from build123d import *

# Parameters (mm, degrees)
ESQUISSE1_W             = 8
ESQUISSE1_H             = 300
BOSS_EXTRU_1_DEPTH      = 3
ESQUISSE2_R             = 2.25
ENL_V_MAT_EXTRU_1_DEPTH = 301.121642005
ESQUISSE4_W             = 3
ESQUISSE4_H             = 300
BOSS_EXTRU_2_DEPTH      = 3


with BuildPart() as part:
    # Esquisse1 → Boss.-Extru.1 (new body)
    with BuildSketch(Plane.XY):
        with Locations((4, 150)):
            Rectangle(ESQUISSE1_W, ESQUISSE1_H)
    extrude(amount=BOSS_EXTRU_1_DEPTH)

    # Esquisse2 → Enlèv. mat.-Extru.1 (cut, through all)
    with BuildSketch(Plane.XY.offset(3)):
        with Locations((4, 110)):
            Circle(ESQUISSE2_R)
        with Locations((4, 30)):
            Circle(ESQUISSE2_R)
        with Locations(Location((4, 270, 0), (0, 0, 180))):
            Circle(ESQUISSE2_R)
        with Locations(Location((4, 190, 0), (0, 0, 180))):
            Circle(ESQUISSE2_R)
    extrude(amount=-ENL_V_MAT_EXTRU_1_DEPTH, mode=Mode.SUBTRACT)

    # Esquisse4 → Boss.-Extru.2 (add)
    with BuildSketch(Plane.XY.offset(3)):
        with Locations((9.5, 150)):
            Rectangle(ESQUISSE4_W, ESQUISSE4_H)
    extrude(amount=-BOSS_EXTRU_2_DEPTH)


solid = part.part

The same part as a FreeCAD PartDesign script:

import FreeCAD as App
import Part
import Sketcher
Q = App.Units.Quantity


def add_polygon(sketch, points):
    """Adds a closed chain of lines whose ends are joined by coincident constraints."""
    first, n = sketch.GeometryCount, len(points)
    for a, b in zip(points, points[1:] + points[:1]):
        sketch.addGeometry(Part.LineSegment(App.Vector(*a, 0), App.Vector(*b, 0)), False)
    for i in range(n):
        sketch.addConstraint(Sketcher.Constraint("Coincident", first + i, 2, first + (i + 1) % n, 1))

doc = App.newDocument("Part")
params = doc.addObject("Spreadsheet::Sheet", "Params")
for row, (alias, value) in enumerate([
    ("sketch1_width", "8 mm"),
    ("sketch1_height", "300 mm"),
    ("pad1_length", "3 mm"),
    ("sketch2_diameter", "4.5 mm"),
    ("sketch3_width", "3 mm"),
    ("sketch3_height", "300 mm"),
    ("pad2_length", "3 mm"),
], start=1):
    params.set(f"A{row}", alias)
    params.set(f"B{row}", "=" + value)
    params.setAlias(f"B{row}", alias)

body = doc.addObject("PartDesign::Body", "Body")

# Sketch on XY plane
sketch1 = body.newObject("Sketcher::SketchObject", "Sketch")
sketch1.AttachmentSupport = (doc.getObject("XY_Plane"), [""])
sketch1.MapMode = "FlatFace"
add_polygon(sketch1, [(0, 300), (0, 0), (8, 0), (8, 300)])  # lines 0-3
sketch1.addConstraint(Sketcher.Constraint("Vertical", 0))
sketch1.addConstraint(Sketcher.Constraint("Horizontal", 1))
sketch1.addConstraint(Sketcher.Constraint("Vertical", 2))
sketch1.addConstraint(Sketcher.Constraint("Horizontal", 3))
sketch1.addConstraint(Sketcher.Constraint("Coincident", 0, 2, -1, 1))
sketch1.addConstraint(Sketcher.Constraint("DistanceX", 1, 1, 1, 2, Q("8 mm")))
sketch1.addConstraint(Sketcher.Constraint("DistanceY", 0, 2, 0, 1, Q("300 mm")))
sketch1.setExpression("Constraints[9]", "Params.sketch1_width")
sketch1.setExpression("Constraints[10]", "Params.sketch1_height")
pad1 = body.newObject("PartDesign::Pad", "Pad")
pad1.Profile = sketch1
pad1.setExpression("Length", "Params.pad1_length")

# Sketch on XY plane
sketch2 = body.newObject("Sketcher::SketchObject", "Sketch001")
sketch2.AttachmentSupport = (doc.getObject("XY_Plane"), [""])
sketch2.MapMode = "FlatFace"
sketch2.AttachmentOffset = App.Placement(App.Vector(0, 0, 3), App.Rotation())
sketch2.addGeometry(Part.Circle(App.Vector(4, 110, 0), App.Vector(0, 0, 1), 2.25), False)
sketch2.addGeometry(Part.Circle(App.Vector(4, 30, 0), App.Vector(0, 0, 1), 2.25), False)
sketch2.addGeometry(Part.Circle(App.Vector(4, 270, 0), App.Vector(0, 0, 1), 2.25), False)
sketch2.addGeometry(Part.Circle(App.Vector(4, 190, 0), App.Vector(0, 0, 1), 2.25), False)
sketch2.addConstraint(Sketcher.Constraint("Equal", 0, 1))
sketch2.addConstraint(Sketcher.Constraint("Equal", 1, 2))
sketch2.addConstraint(Sketcher.Constraint("Equal", 2, 3))
sketch2.addConstraint(Sketcher.Constraint("Vertical", 0, 3, 1, 3))
sketch2.addConstraint(Sketcher.Constraint("Vertical", 1, 3, 2, 3))
sketch2.addConstraint(Sketcher.Constraint("Vertical", 2, 3, 3, 3))
sketch2.addConstraint(Sketcher.Constraint("Diameter", 0, Q("4.5 mm")))
sketch2.addConstraint(Sketcher.Constraint("DistanceX", -1, 1, 0, 3, Q("4 mm")))
sketch2.addConstraint(Sketcher.Constraint("DistanceY", -1, 1, 0, 3, Q("110 mm")))
sketch2.addConstraint(Sketcher.Constraint("DistanceY", -1, 1, 1, 3, Q("30 mm")))
sketch2.addConstraint(Sketcher.Constraint("DistanceY", -1, 1, 2, 3, Q("270 mm")))
sketch2.addConstraint(Sketcher.Constraint("DistanceY", -1, 1, 3, 3, Q("190 mm")))
sketch2.setExpression("Constraints[6]", "Params.sketch2_diameter")
pocket1 = body.newObject("PartDesign::Pocket", "Pocket")
pocket1.Profile = sketch2
pocket1.Type = "ThroughAll"

# Sketch on XY plane
sketch3 = body.newObject("Sketcher::SketchObject", "Sketch002")
sketch3.AttachmentSupport = (doc.getObject("XY_Plane"), [""])
sketch3.MapMode = "FlatFace"
sketch3.AttachmentOffset = App.Placement(App.Vector(0, 0, 3), App.Rotation())
add_polygon(sketch3, [(8, 300), (8, 0), (11, 0), (11, 300)])  # lines 0-3
sketch3.addConstraint(Sketcher.Constraint("Vertical", 0))
sketch3.addConstraint(Sketcher.Constraint("Horizontal", 1))
sketch3.addConstraint(Sketcher.Constraint("Vertical", 2))
sketch3.addConstraint(Sketcher.Constraint("Horizontal", 3))
sketch3.addConstraint(Sketcher.Constraint("PointOnObject", 0, 2, -1))
sketch3.addConstraint(Sketcher.Constraint("DistanceX", 1, 1, 1, 2, Q("3 mm")))
sketch3.addConstraint(Sketcher.Constraint("DistanceY", 0, 2, 0, 1, Q("300 mm")))
sketch3.addConstraint(Sketcher.Constraint("DistanceX", -1, 1, 0, 2, Q("8 mm")))
sketch3.setExpression("Constraints[9]", "Params.sketch3_width")
sketch3.setExpression("Constraints[10]", "Params.sketch3_height")
pad2 = body.newObject("PartDesign::Pad", "Pad001")
pad2.Profile = sketch3
pad2.setExpression("Length", "Params.pad2_length")
pad2.Reversed = True

doc.recompute()
